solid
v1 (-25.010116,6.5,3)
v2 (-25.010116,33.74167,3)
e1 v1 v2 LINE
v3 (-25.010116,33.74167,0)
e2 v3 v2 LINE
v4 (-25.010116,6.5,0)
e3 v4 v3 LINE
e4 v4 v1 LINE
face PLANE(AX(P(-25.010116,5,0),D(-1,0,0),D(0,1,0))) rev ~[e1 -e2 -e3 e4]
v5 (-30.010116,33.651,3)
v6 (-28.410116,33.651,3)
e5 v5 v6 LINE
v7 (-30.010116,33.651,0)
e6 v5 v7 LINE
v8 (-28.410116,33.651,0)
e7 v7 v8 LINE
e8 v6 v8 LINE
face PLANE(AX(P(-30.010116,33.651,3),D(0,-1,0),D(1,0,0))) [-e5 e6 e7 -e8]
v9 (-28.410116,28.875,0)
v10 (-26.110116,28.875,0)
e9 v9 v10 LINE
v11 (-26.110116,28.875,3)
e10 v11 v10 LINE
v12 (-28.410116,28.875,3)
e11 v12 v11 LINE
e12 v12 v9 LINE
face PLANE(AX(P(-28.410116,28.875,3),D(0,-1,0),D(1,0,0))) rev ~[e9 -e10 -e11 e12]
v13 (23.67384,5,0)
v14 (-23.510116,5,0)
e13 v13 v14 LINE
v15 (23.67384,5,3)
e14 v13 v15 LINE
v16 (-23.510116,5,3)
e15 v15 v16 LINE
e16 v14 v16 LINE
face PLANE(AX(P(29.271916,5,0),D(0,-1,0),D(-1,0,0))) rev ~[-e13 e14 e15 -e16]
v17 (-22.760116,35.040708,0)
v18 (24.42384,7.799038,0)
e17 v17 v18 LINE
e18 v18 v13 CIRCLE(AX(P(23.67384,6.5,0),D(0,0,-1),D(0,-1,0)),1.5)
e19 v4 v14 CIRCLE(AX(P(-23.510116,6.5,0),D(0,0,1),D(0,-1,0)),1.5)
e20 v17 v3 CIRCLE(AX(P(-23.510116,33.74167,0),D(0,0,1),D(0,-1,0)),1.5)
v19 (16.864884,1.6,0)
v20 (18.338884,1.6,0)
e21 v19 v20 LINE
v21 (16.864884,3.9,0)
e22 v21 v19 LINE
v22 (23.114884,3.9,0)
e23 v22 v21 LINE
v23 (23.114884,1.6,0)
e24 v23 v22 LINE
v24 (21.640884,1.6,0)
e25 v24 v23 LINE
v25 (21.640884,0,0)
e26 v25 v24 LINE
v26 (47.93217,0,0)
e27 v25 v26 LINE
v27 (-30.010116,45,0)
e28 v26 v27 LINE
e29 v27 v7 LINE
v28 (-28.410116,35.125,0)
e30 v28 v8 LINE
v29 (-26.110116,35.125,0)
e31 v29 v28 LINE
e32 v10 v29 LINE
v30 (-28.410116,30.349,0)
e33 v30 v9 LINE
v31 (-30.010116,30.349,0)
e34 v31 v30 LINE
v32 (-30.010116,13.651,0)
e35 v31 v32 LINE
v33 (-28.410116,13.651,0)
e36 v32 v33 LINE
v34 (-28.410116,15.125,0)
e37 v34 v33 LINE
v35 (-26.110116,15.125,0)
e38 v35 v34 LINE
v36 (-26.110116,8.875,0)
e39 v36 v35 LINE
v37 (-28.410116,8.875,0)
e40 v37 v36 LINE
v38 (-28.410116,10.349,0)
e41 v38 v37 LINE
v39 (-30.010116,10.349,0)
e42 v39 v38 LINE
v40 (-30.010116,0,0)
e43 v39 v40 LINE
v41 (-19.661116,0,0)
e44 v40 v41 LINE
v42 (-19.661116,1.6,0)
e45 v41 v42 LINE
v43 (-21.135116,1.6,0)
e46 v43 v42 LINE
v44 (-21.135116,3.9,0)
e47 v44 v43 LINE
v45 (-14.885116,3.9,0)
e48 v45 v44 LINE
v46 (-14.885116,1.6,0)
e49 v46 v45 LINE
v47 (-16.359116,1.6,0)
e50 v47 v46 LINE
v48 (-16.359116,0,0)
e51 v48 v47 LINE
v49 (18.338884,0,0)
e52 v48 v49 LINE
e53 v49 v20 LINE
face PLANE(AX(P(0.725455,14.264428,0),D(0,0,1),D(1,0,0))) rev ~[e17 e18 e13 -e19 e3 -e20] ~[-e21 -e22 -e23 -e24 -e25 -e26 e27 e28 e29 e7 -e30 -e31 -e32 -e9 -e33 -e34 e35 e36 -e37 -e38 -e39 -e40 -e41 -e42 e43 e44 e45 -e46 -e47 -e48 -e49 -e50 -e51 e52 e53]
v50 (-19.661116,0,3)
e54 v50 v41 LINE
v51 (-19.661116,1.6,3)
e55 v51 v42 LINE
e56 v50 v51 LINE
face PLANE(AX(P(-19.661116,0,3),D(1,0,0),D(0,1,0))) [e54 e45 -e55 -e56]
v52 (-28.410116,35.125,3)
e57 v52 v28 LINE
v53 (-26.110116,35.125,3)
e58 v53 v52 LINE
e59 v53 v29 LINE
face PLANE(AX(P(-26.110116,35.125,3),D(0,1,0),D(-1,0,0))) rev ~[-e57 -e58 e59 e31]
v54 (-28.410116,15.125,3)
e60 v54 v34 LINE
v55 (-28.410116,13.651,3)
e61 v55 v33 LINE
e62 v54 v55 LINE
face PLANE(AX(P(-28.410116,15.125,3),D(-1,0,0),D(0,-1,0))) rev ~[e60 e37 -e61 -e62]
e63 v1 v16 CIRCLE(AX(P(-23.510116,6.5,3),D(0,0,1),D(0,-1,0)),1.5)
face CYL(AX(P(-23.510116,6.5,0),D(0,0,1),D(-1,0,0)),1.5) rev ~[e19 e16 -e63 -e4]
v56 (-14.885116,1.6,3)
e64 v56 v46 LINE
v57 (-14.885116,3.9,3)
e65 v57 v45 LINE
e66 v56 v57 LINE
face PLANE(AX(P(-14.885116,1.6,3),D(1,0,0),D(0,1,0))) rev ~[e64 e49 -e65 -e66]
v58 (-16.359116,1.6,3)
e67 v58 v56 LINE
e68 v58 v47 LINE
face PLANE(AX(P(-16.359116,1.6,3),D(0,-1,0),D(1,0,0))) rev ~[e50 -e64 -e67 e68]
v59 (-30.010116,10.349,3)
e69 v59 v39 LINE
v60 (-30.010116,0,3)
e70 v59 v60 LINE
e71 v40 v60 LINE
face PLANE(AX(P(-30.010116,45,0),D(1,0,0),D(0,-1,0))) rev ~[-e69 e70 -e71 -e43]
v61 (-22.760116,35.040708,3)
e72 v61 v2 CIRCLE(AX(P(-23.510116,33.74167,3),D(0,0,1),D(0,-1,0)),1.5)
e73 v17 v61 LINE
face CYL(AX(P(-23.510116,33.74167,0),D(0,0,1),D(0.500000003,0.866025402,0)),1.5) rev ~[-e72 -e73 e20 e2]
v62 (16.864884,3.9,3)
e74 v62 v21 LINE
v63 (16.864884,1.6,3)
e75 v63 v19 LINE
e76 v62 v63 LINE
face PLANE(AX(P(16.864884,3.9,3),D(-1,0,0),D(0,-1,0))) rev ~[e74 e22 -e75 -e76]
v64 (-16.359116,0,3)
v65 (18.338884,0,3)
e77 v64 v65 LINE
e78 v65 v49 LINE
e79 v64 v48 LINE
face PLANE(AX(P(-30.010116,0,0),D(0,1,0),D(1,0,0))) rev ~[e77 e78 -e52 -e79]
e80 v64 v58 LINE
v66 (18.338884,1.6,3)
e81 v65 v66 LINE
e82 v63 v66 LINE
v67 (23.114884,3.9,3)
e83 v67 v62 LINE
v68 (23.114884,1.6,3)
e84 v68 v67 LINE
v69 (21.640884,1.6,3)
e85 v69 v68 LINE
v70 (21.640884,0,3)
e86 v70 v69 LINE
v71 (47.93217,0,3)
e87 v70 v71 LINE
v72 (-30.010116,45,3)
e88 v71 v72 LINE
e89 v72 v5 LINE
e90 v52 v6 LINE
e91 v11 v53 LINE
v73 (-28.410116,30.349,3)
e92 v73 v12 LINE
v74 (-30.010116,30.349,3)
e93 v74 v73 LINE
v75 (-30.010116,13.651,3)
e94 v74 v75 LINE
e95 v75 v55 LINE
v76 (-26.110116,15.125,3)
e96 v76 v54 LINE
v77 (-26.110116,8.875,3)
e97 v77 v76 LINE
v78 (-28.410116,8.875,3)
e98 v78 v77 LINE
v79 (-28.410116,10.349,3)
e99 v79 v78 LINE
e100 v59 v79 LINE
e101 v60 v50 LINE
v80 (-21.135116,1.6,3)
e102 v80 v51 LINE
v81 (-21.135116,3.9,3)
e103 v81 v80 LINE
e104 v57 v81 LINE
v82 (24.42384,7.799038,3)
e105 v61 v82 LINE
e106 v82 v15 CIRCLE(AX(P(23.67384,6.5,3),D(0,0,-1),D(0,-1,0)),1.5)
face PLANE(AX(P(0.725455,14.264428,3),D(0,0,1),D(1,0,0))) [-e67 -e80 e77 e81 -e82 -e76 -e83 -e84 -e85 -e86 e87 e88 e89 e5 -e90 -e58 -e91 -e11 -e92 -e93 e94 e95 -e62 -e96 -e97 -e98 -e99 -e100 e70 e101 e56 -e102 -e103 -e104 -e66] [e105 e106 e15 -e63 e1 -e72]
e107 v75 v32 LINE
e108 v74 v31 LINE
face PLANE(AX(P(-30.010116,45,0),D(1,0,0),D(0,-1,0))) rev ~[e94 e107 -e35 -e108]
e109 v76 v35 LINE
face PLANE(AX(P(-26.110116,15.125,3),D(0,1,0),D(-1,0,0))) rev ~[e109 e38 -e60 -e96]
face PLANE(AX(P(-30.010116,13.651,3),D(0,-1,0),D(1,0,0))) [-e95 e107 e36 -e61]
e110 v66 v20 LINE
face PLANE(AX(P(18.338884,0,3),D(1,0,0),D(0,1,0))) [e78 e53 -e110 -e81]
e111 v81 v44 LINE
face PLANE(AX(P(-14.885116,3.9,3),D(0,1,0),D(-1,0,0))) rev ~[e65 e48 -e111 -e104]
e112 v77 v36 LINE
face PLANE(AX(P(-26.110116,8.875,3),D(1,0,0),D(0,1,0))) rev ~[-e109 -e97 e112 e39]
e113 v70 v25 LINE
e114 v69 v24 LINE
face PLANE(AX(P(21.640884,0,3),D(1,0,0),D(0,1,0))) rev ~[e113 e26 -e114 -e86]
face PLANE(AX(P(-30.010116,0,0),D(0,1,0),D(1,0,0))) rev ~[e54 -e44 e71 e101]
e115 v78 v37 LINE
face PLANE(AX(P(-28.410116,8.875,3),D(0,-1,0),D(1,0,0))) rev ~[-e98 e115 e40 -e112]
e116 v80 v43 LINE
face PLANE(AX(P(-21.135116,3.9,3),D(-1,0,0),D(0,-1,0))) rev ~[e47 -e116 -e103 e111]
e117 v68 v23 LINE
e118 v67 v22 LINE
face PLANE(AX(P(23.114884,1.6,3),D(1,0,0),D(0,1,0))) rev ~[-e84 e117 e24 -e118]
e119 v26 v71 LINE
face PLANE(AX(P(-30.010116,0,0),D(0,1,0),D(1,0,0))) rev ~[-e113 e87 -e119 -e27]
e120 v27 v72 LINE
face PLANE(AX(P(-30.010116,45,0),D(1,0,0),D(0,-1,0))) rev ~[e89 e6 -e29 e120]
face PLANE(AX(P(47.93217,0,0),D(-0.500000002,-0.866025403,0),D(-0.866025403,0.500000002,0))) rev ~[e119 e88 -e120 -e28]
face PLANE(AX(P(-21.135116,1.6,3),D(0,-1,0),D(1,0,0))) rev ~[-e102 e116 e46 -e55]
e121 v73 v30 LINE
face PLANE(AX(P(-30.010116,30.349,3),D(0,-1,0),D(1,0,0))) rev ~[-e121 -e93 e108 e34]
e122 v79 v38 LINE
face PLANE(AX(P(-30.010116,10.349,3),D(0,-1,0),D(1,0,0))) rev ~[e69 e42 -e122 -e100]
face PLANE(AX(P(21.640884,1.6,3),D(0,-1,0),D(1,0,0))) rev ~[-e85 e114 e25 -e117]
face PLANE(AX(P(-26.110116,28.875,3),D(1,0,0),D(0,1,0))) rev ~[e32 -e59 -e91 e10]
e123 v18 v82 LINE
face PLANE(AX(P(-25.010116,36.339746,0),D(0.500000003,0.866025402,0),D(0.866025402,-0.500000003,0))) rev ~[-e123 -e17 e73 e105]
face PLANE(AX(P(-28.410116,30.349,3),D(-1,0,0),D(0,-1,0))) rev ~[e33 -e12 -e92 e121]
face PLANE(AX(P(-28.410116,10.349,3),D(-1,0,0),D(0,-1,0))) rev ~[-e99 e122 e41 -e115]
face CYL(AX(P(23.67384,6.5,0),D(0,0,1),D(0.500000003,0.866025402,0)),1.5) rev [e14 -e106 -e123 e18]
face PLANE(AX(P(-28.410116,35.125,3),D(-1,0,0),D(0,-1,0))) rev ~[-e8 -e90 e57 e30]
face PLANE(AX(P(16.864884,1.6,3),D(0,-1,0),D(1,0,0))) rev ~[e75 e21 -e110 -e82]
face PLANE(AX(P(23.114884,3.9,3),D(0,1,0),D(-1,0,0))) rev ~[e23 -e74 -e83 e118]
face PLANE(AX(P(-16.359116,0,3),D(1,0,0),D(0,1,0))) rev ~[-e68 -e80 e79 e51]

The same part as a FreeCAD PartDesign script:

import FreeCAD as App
import Part
import Sketcher
from FreeCAD import Vector
Q = App.Units.Quantity


def edges_at(feature, points):
    """Names of the edges that pass closest to the given points."""
    edges = feature.Shape.Edges
    near = lambda p: min(range(len(edges)), key=lambda i: edges[i].distToShape(Part.Vertex(*p))[0])
    return sorted({f"Edge{near(p) + 1}" for p in points})

doc = App.newDocument("Part")
body = doc.addObject("PartDesign::Body", "Body")

sketch1 = body.newObject("Sketcher::SketchObject", "Sketch")
sketch1.AttachmentSupport = (doc.getObject("XY_Plane"), [""])
sketch1.MapMode = "FlatFace"
sketch1.addGeometry([
    Part.LineSegment(Vector(-30, 45, 0), Vector(-30, 0, 0)),
    Part.LineSegment(Vector(-30, 0, 0), Vector(48, 0, 0)),
    Part.LineSegment(Vector(48, 0, 0), Vector(-30, 45, 0)),
    Part.LineSegment(Vector(-25, 36, 0), Vector(29, 5, 0)),
    Part.LineSegment(Vector(29, 5, 0), Vector(-25, 5, 0)),
    Part.LineSegment(Vector(-25, 5, 0), Vector(-25, 36, 0)),
], False)
sketch1.addConstraint([
    Sketcher.Constraint("Coincident", 0, 2, 1, 1),
    Sketcher.Constraint("Coincident", 1, 2, 2, 1),
    Sketcher.Constraint("Coincident", 2, 2, 0, 1),
    Sketcher.Constraint("Coincident", 3, 2, 4, 1),
    Sketcher.Constraint("Coincident", 4, 2, 5, 1),
    Sketcher.Constraint("Coincident", 5, 2, 3, 1),
    Sketcher.Constraint("Vertical", 0),
    Sketcher.Constraint("Horizontal", 1),
    Sketcher.Constraint("Horizontal", 4),
    Sketcher.Constraint("Vertical", 5),
    Sketcher.Constraint("PointOnObject", 0, 2, -1),
    Sketcher.Constraint("Parallel", 2, 3),
    Sketcher.Constraint("DistanceY", 0, 2, 0, 1, Q("45 mm")),
    Sketcher.Constraint("Angle", 2, Q("150 deg")),
    Sketcher.Constraint("DistanceY", -1, 1, 3, 2, Q("5 mm")),
    Sketcher.Constraint("DistanceX", 0, 2, 4, 2, Q("5 mm")),
    Sketcher.Constraint("Distance", 3, Q("62.679492 mm")),
    Sketcher.Constraint("DistanceX", -1, 1, 1, 2, Q("47.93217 mm")),
])
pad1 = body.newObject("PartDesign::Pad", "Pad")
pad1.Profile = sketch1
pad1.Length = 3
doc.recompute()

fillet = body.newObject("PartDesign::Fillet", "Fillet")
fillet.Base = (pad1, edges_at(pad1, [(-25.01, 36.34, 1.5), (29.272, 5, 1.5), (-25.01, 5, 1.5)]))
fillet.Radius = 1.5

sketch2 = body.newObject("Sketcher::SketchObject", "Sketch001")
sketch2.AttachmentSupport = (doc.getObject("XY_Plane"), [""])
sketch2.MapMode = "FlatFace"
sketch2.AttachmentOffset = App.Placement(Vector(0, 0, 3), App.Rotation())
sketch2.addGeometry([
    Part.LineSegment(Vector(-28.4, 35.1, 0), Vector(-28.4, 33.7, 0)),
    Part.LineSegment(Vector(-28.4, 33.7, 0), Vector(-30, 33.7, 0)),
    Part.LineSegment(Vector(-30, 33.7, 0), Vector(-30, 30.3, 0)),
    Part.LineSegment(Vector(-30, 30.3, 0), Vector(-28.4, 30.3, 0)),
    Part.LineSegment(Vector(-28.4, 30.3, 0), Vector(-28.4, 28.9, 0)),
    Part.LineSegment(Vector(-28.4, 28.9, 0), Vector(-26.1, 28.9, 0)),
    Part.LineSegment(Vector(-26.1, 28.9, 0), Vector(-26.1, 35.1, 0)),
    Part.LineSegment(Vector(-26.1, 35.1, 0), Vector(-28.4, 35.1, 0)),
    Part.LineSegment(Vector(-28.4, 8.9, 0), Vector(-26.1, 8.9, 0)),
    Part.LineSegment(Vector(-26.1, 8.9, 0), Vector(-26.1, 15.1, 0)),
    Part.LineSegment(Vector(-26.1, 15.1, 0), Vector(-28.4, 15.1, 0)),
    Part.LineSegment(Vector(-28.4, 15.1, 0), Vector(-28.4, 13.7, 0)),
    Part.LineSegment(Vector(-28.4, 13.7, 0), Vector(-30, 13.7, 0)),
    Part.LineSegment(Vector(-30, 13.7, 0), Vector(-30, 10.3, 0)),
    Part.LineSegment(Vector(-30, 10.3, 0), Vector(-28.4, 10.3, 0)),
    Part.LineSegment(Vector(-28.4, 10.3, 0), Vector(-28.4, 8.9, 0)),
    Part.LineSegment(Vector(-14.9, 1.6, 0), Vector(-14.9, 3.9, 0)),
    Part.LineSegment(Vector(-14.9, 3.9, 0), Vector(-21.1, 3.9, 0)),
    Part.LineSegment(Vector(-21.1, 3.9, 0), Vector(-21.1, 1.6, 0)),
    Part.LineSegment(Vector(-21.1, 1.6, 0), Vector(-19.7, 1.6, 0)),
    Part.LineSegment(Vector(-19.7, 1.6, 0), Vector(-19.7, 0, 0)),
    Part.LineSegment(Vector(-19.7, 0, 0), Vector(-16.4, 0, 0)),
    Part.LineSegment(Vector(-16.4, 0, 0), Vector(-16.4, 1.6, 0)),
    Part.LineSegment(Vector(-16.4, 1.6, 0), Vector(-14.9, 1.6, 0)),
    Part.LineSegment(Vector(23.1, 1.6, 0), Vector(23.1, 3.9, 0)),
    Part.LineSegment(Vector(23.1, 3.9, 0), Vector(16.9, 3.9, 0)),
    Part.LineSegment(Vector(16.9, 3.9, 0), Vector(16.9, 1.6, 0)),
    Part.LineSegment(Vector(16.9, 1.6, 0), Vector(18.3, 1.6, 0)),
    Part.LineSegment(Vector(18.3, 1.6, 0), Vector(18.3, 0, 0)),
    Part.LineSegment(Vector(18.3, 0, 0), Vector(21.6, 0, 0)),
    Part.LineSegment(Vector(21.6, 0, 0), Vector(21.6, 1.6, 0)),
    Part.LineSegment(Vector(21.6, 1.6, 0), Vector(23.1, 1.6, 0)),
], False)
sketch2.addConstraint([
    Sketcher.Constraint("Coincident", 0, 2, 1, 1),
    Sketcher.Constraint("Coincident", 1, 2, 2, 1),
    Sketcher.Constraint("Coincident", 2, 2, 3, 1),
    Sketcher.Constraint("Coincident", 3, 2, 4, 1),
    Sketcher.Constraint("Coincident", 4, 2, 5, 1),
    Sketcher.Constraint("Coincident", 5, 2, 6, 1),
    Sketcher.Constraint("Coincident", 6, 2, 7, 1),
    Sketcher.Constraint("Coincident", 7, 2, 0, 1),
    Sketcher.Constraint("Coincident", 8, 2, 9, 1),
    Sketcher.Constraint("Coincident", 9, 2, 10, 1),
    Sketcher.Constraint("Coincident", 10, 2, 11, 1),
    Sketcher.Constraint("Coincident", 11, 2, 12, 1),
    Sketcher.Constraint("Coincident", 12, 2, 13, 1),
    Sketcher.Constraint("Coincident", 13, 2, 14, 1),
    Sketcher.Constraint("Coincident", 14, 2, 15, 1),
    Sketcher.Constraint("Coincident", 15, 2, 8, 1),
    Sketcher.Constraint("Coincident", 16, 2, 17, 1),
    Sketcher.Constraint("Coincident", 17, 2, 18, 1),
    Sketcher.Constraint("Coincident", 18, 2, 19, 1),
    Sketcher.Constraint("Coincident", 19, 2, 20, 1),
    Sketcher.Constraint("Coincident", 20, 2, 21, 1),
    Sketcher.Constraint("Coincident", 21, 2, 22, 1),
    Sketcher.Constraint("Coincident", 22, 2, 23, 1),
    Sketcher.Constraint("Coincident", 23, 2, 16, 1),
    Sketcher.Constraint("Coincident", 24, 2, 25, 1),
    Sketcher.Constraint("Coincident", 25, 2, 26, 1),
    Sketcher.Constraint("Coincident", 26, 2, 27, 1),
    Sketcher.Constraint("Coincident", 27, 2, 28, 1),
    Sketcher.Constraint("Coincident", 28, 2, 29, 1),
    Sketcher.Constraint("Coincident", 29, 2, 30, 1),
    Sketcher.Constraint("Coincident", 30, 2, 31, 1),
    Sketcher.Constraint("Coincident", 31, 2, 24, 1),
    Sketcher.Constraint("Vertical", 0),
    Sketcher.Constraint("Horizontal", 1),
    Sketcher.Constraint("Vertical", 2),
    Sketcher.Constraint("Horizontal", 3),
    Sketcher.Constraint("Vertical", 4),
    Sketcher.Constraint("Horizontal", 5),
    Sketcher.Constraint("Vertical", 6),
    Sketcher.Constraint("Horizontal", 7),
    Sketcher.Constraint("Horizontal", 8),
    Sketcher.Constraint("Vertical", 9),
    Sketcher.Constraint("Horizontal", 10),
    Sketcher.Constraint("Vertical", 11),
    Sketcher.Constraint("Horizontal", 12),
    Sketcher.Constraint("Vertical", 13),
    Sketcher.Constraint("Horizontal", 14),
    Sketcher.Constraint("Vertical", 15),
    Sketcher.Constraint("Vertical", 16),
    Sketcher.Constraint("Horizontal", 17),
    Sketcher.Constraint("Vertical", 18),
    Sketcher.Constraint("Horizontal", 19),
    Sketcher.Constraint("Vertical", 20),
    Sketcher.Constraint("Horizontal", 21),
    Sketcher.Constraint("Vertical", 22),
    Sketcher.Constraint("Horizontal", 23),
    Sketcher.Constraint("Vertical", 24),
    Sketcher.Constraint("Horizontal", 25),
    Sketcher.Constraint("Vertical", 26),
    Sketcher.Constraint("Horizontal", 27),
    Sketcher.Constraint("Vertical", 28),
    Sketcher.Constraint("Horizontal", 29),
    Sketcher.Constraint("Vertical", 30),
    Sketcher.Constraint("Horizontal", 31),
    Sketcher.Constraint("PointOnObject", 20, 2, -1),
    Sketcher.Constraint("PointOnObject", 28, 2, -1),
    Sketcher.Constraint("Horizontal", 19, 2, 22, 2),
    Sketcher.Constraint("Horizontal", 17, 2, 24, 2),
    Sketcher.Constraint("Horizontal", 23, 2, 26, 2),
    Sketcher.Constraint("Horizontal", 27, 2, 30, 2),
    Sketcher.Constraint("Vertical", 0, 2, 3, 2),
    Sketcher.Constraint("Vertical", 6, 2, 8, 2),
    Sketcher.Constraint("Vertical", 7, 2, 10, 2),
    Sketcher.Constraint("Vertical", 2, 2, 12, 2),
    Sketcher.Constraint("Vertical", 11, 2, 14, 2),
    Sketcher.Constraint("Equal", 19, 23),
    Sketcher.Constraint("Equal", 17, 25),
    Sketcher.Constraint("Equal", 23, 27),
    Sketcher.Constraint("Equal", 21, 29),
    Sketcher.Constraint("Equal", 31, 0),
    Sketcher.Constraint("Equal", 29, 2),
    Sketcher.Constraint("Equal", 0, 4),
    Sketcher.Constraint("Equal", 6, 9),
    Sketcher.Constraint("Equal", 4, 11),
    Sketcher.Constraint("Equal", 2, 13),
    Sketcher.Constraint("Equal", 10, 16),
    Sketcher.Constraint("Equal", 14, 20),
    Sketcher.Constraint("DistanceX", 1, 2, 1, 1, Q("1.6 mm")),
    Sketcher.Constraint("DistanceX", 5, 1, 5, 2, Q("2.3 mm")),
    Sketcher.Constraint("DistanceY", 8, 2, 5, 2, Q("20 mm")),
    Sketcher.Constraint("DistanceX", 16, 2, 24, 2, Q("38 mm")),
    Sketcher.Constraint("DistanceX", 17, 2, 17, 1, Q("6.25 mm")),
    Sketcher.Constraint("DistanceX", 19, 1, 19, 2, Q("1.474 mm")),
    Sketcher.Constraint("DistanceY", -1, 1, 0, 2, Q("33.651 mm")),
    Sketcher.Constraint("DistanceX", 8, 2, 16, 2, Q("11.225 mm")),
    Sketcher.Constraint("DistanceX", 0, 2, -1, 1, Q("28.410116 mm")),
])
pocket1 = body.newObject("PartDesign::Pocket", "Pocket")
pocket1.Profile = sketch2
pocket1.Type = "ThroughAll"

doc.recompute()
